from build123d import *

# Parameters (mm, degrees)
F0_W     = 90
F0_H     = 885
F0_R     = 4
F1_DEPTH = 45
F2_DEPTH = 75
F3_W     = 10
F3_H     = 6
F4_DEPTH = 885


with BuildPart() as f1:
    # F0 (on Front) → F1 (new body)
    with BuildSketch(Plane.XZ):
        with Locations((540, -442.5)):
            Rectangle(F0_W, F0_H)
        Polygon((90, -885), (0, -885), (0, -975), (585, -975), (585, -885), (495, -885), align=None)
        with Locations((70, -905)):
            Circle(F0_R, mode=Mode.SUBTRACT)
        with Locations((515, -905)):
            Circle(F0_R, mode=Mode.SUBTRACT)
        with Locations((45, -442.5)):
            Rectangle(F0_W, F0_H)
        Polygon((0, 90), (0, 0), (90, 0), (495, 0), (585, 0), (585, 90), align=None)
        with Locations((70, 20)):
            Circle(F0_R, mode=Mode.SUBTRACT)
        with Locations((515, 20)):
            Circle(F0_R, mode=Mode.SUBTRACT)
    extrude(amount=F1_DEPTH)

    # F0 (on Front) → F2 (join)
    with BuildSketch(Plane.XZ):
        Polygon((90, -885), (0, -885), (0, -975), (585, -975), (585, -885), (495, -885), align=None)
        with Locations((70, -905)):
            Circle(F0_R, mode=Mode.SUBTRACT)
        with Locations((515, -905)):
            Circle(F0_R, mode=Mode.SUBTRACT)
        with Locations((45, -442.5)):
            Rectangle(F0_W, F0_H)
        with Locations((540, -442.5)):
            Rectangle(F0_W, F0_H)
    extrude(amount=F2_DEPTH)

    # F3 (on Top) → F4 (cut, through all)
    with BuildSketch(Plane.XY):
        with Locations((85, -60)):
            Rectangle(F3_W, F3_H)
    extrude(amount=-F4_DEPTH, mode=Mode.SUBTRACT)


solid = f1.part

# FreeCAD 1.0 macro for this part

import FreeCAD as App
import Part
import Sketcher
Q = App.Units.Quantity

doc = App.newDocument("Part")
body = doc.addObject("PartDesign::Body", "Body")

sketch1 = body.newObject("Sketcher::SketchObject", "Sketch")
sketch1.AttachmentSupport = (doc.getObject("XZ_Plane"), [""])
sketch1.MapMode = "FlatFace"
sketch1.addGeometry([
    Part.LineSegment(App.Vector(0, -975, 0), App.Vector(585, -975, 0)),
    Part.LineSegment(App.Vector(585, -975, 0), App.Vector(585, 90, 0)),
    Part.LineSegment(App.Vector(585, 90, 0), App.Vector(0, 90, 0)),
    Part.LineSegment(App.Vector(0, 90, 0), App.Vector(0, -975, 0)),
    Part.Circle(App.Vector(70, -905, 0), App.Vector(0, 0, 1), 4),
    Part.Circle(App.Vector(515, -905, 0), App.Vector(0, 0, 1), 4),
    Part.Circle(App.Vector(70, 20, 0), App.Vector(0, 0, 1), 4),
    Part.LineSegment(App.Vector(495, 0, 0), App.Vector(495, -885, 0)),
    Part.LineSegment(App.Vector(495, -885, 0), App.Vector(90, -885, 0)),
    Part.LineSegment(App.Vector(90, -885, 0), App.Vector(90, 0, 0)),
    Part.LineSegment(App.Vector(90, 0, 0), App.Vector(495, 0, 0)),
    Part.Circle(App.Vector(515, 20, 0), App.Vector(0, 0, 1), 4),
], False)
sketch1.addConstraint([
    Sketcher.Constraint("Coincident", 0, 2, 1, 1),
    Sketcher.Constraint("Coincident", 1, 2, 2, 1),
    Sketcher.Constraint("Coincident", 2, 2, 3, 1),
    Sketcher.Constraint("Coincident", 3, 2, 0, 1),
    Sketcher.Constraint("Coincident", 7, 2, 8, 1),
    Sketcher.Constraint("Coincident", 8, 2, 9, 1),
    Sketcher.Constraint("Coincident", 9, 2, 10, 1),
    Sketcher.Constraint("Coincident", 10, 2, 7, 1),
    Sketcher.Constraint("Horizontal", 0),
    Sketcher.Constraint("Vertical", 1),
    Sketcher.Constraint("Horizontal", 2),
    Sketcher.Constraint("Vertical", 3),
    Sketcher.Constraint("Vertical", 7),
    Sketcher.Constraint("Horizontal", 8),
    Sketcher.Constraint("Vertical", 9),
    Sketcher.Constraint("Horizontal", 10),
    Sketcher.Constraint("Equal", 4, 5),
    Sketcher.Constraint("Equal", 5, 6),
    Sketcher.Constraint("Equal", 6, 11),
    Sketcher.Constraint("PointOnObject", 2, 2, -2),
    Sketcher.Constraint("PointOnObject", 9, 2, -1),
    Sketcher.Constraint("Horizontal", 4, 3, 5, 3),
    Sketcher.Constraint("Horizontal", 6, 3, 11, 3),
    Sketcher.Constraint("Vertical", 4, 3, 6, 3),
    Sketcher.Constraint("Vertical", 5, 3, 11, 3),
    Sketcher.Constraint("Diameter", 4, Q("8 mm")),
    Sketcher.Constraint("DistanceX", 0, 1, 0, 2, Q("585 mm")),
    Sketcher.Constraint("DistanceX", 8, 2, 8, 1, Q("405 mm")),
    Sketcher.Constraint("DistanceY", 1, 1, 1, 2, Q("1065 mm")),
    Sketcher.Constraint("DistanceY", 7, 2, 7, 1, Q("885 mm")),
    Sketcher.Constraint("DistanceX", -1, 1, 4, 3, Q("70 mm")),
    Sketcher.Constraint("DistanceY", 4, 3, -1, 1, Q("905 mm")),
    Sketcher.Constraint("DistanceX", -1, 1, 5, 3, Q("515 mm")),
    Sketcher.Constraint("DistanceY", -1, 1, 6, 3, Q("20 mm")),
    Sketcher.Constraint("DistanceY", 0, 2, -1, 1, Q("975 mm")),
    Sketcher.Constraint("DistanceX", -1, 1, 7, 2, Q("495 mm")),
])
pad1 = body.newObject("PartDesign::Pad", "Pad")
pad1.Profile = sketch1
pad1.Length = 45

sketch2 = body.newObject("Sketcher::SketchObject", "Sketch001")
sketch2.AttachmentSupport = (doc.getObject("XZ_Plane"), [""])
sketch2.MapMode = "FlatFace"
sketch2.addGeometry([
    Part.LineSegment(App.Vector(0, -975, 0), App.Vector(585, -975, 0)),
    Part.LineSegment(App.Vector(585, -975, 0), App.Vector(585, 0, 0)),
    Part.LineSegment(App.Vector(585, 0, 0), App.Vector(495, 0, 0)),
    Part.LineSegment(App.Vector(495, 0, 0), App.Vector(495, -885, 0)),
    Part.LineSegment(App.Vector(495, -885, 0), App.Vector(90, -885, 0)),
    Part.LineSegment(App.Vector(90, -885, 0), App.Vector(90, 0, 0)),
    Part.LineSegment(App.Vector(90, 0, 0), App.Vector(0, 0, 0)),
    Part.LineSegment(App.Vector(0, 0, 0), App.Vector(0, -975, 0)),
    Part.Circle(App.Vector(70, -905, 0), App.Vector(0, 0, 1), 4),
    Part.Circle(App.Vector(515, -905, 0), App.Vector(0, 0, 1), 4),
], False)
sketch2.addConstraint([
    Sketcher.Constraint("Coincident", 0, 2, 1, 1),
    Sketcher.Constraint("Coincident", 1, 2, 2, 1),
    Sketcher.Constraint("Coincident", 2, 2, 3, 1),
    Sketcher.Constraint("Coincident", 3, 2, 4, 1),
    Sketcher.Constraint("Coincident", 4, 2, 5, 1),
    Sketcher.Constraint("Coincident", 5, 2, 6, 1),
    Sketcher.Constraint("Coincident", 6, 2, 7, 1),
    Sketcher.Constraint("Coincident", 7, 2, 0, 1),
    Sketcher.Constraint("Horizontal", 0),
    Sketcher.Constraint("Vertical", 1),
    Sketcher.Constraint("Horizontal", 2),
    Sketcher.Constraint("Vertical", 3),
    Sketcher.Constraint("Horizontal", 4),
    Sketcher.Constraint("Vertical", 5),
    Sketcher.Constraint("Horizontal", 6),
    Sketcher.Constraint("Vertical", 7),
    Sketcher.Constraint("Coincident", 6, 2, -1, 1),
    Sketcher.Constraint("Equal", 8, 9),
    Sketcher.Constraint("PointOnObject", 1, 2, -1),
    Sketcher.Constraint("Horizontal", 8, 3, 9, 3),
    Sketcher.Constraint("Equal", 2, 6),
    Sketcher.Constraint("Diameter", 8, Q("8 mm")),
    Sketcher.Constraint("DistanceX", 0, 1, 0, 2, Q("585 mm")),
    Sketcher.Constraint("DistanceX", 2, 2, 2, 1, Q("90 mm")),
    Sketcher.Constraint("DistanceY", 1, 1, 1, 2, Q("975 mm")),
    Sketcher.Constraint("DistanceY", 3, 2, 3, 1, Q("885 mm")),
    Sketcher.Constraint("DistanceX", -1, 1, 8, 3, Q("70 mm")),
    Sketcher.Constraint("DistanceY", 8, 3, -1, 1, Q("905 mm")),
    Sketcher.Constraint("DistanceX", -1, 1, 9, 3, Q("515 mm")),
])
pad2 = body.newObject("PartDesign::Pad", "Pad001")
pad2.Profile = sketch2
pad2.Length = 75

sketch3 = body.newObject("Sketcher::SketchObject", "Sketch002")
sketch3.AttachmentSupport = (doc.getObject("XY_Plane"), [""])
sketch3.MapMode = "FlatFace"
sketch3.addGeometry([
    Part.LineSegment(App.Vector(80, -57, 0), App.Vector(80, -63, 0)),
    Part.LineSegment(App.Vector(80, -63, 0), App.Vector(90, -63, 0)),
    Part.LineSegment(App.Vector(90, -63, 0), App.Vector(90, -57, 0)),
    Part.LineSegment(App.Vector(90, -57, 0), App.Vector(80, -57, 0)),
], False)
sketch3.addConstraint([
    Sketcher.Constraint("Coincident", 0, 2, 1, 1),
    Sketcher.Constraint("Coincident", 1, 2, 2, 1),
    Sketcher.Constraint("Coincident", 2, 2, 3, 1),
    Sketcher.Constraint("Coincident", 3, 2, 0, 1),
    Sketcher.Constraint("Vertical", 0),
    Sketcher.Constraint("Horizontal", 1),
    Sketcher.Constraint("Vertical", 2),
    Sketcher.Constraint("Horizontal", 3),
    Sketcher.Constraint("DistanceX", 1, 1, 1, 2, Q("10 mm")),
    Sketcher.Constraint("DistanceY", 0, 2, 0, 1, Q("6 mm")),
    Sketcher.Constraint("DistanceX", -1, 1, 0, 2, Q("80 mm")),
    Sketcher.Constraint("DistanceY", 0, 2, -1, 1, Q("63 mm")),
])
pocket1 = body.newObject("PartDesign::Pocket", "Pocket")
pocket1.Profile = sketch3
pocket1.Length = 885

doc.recompute()
